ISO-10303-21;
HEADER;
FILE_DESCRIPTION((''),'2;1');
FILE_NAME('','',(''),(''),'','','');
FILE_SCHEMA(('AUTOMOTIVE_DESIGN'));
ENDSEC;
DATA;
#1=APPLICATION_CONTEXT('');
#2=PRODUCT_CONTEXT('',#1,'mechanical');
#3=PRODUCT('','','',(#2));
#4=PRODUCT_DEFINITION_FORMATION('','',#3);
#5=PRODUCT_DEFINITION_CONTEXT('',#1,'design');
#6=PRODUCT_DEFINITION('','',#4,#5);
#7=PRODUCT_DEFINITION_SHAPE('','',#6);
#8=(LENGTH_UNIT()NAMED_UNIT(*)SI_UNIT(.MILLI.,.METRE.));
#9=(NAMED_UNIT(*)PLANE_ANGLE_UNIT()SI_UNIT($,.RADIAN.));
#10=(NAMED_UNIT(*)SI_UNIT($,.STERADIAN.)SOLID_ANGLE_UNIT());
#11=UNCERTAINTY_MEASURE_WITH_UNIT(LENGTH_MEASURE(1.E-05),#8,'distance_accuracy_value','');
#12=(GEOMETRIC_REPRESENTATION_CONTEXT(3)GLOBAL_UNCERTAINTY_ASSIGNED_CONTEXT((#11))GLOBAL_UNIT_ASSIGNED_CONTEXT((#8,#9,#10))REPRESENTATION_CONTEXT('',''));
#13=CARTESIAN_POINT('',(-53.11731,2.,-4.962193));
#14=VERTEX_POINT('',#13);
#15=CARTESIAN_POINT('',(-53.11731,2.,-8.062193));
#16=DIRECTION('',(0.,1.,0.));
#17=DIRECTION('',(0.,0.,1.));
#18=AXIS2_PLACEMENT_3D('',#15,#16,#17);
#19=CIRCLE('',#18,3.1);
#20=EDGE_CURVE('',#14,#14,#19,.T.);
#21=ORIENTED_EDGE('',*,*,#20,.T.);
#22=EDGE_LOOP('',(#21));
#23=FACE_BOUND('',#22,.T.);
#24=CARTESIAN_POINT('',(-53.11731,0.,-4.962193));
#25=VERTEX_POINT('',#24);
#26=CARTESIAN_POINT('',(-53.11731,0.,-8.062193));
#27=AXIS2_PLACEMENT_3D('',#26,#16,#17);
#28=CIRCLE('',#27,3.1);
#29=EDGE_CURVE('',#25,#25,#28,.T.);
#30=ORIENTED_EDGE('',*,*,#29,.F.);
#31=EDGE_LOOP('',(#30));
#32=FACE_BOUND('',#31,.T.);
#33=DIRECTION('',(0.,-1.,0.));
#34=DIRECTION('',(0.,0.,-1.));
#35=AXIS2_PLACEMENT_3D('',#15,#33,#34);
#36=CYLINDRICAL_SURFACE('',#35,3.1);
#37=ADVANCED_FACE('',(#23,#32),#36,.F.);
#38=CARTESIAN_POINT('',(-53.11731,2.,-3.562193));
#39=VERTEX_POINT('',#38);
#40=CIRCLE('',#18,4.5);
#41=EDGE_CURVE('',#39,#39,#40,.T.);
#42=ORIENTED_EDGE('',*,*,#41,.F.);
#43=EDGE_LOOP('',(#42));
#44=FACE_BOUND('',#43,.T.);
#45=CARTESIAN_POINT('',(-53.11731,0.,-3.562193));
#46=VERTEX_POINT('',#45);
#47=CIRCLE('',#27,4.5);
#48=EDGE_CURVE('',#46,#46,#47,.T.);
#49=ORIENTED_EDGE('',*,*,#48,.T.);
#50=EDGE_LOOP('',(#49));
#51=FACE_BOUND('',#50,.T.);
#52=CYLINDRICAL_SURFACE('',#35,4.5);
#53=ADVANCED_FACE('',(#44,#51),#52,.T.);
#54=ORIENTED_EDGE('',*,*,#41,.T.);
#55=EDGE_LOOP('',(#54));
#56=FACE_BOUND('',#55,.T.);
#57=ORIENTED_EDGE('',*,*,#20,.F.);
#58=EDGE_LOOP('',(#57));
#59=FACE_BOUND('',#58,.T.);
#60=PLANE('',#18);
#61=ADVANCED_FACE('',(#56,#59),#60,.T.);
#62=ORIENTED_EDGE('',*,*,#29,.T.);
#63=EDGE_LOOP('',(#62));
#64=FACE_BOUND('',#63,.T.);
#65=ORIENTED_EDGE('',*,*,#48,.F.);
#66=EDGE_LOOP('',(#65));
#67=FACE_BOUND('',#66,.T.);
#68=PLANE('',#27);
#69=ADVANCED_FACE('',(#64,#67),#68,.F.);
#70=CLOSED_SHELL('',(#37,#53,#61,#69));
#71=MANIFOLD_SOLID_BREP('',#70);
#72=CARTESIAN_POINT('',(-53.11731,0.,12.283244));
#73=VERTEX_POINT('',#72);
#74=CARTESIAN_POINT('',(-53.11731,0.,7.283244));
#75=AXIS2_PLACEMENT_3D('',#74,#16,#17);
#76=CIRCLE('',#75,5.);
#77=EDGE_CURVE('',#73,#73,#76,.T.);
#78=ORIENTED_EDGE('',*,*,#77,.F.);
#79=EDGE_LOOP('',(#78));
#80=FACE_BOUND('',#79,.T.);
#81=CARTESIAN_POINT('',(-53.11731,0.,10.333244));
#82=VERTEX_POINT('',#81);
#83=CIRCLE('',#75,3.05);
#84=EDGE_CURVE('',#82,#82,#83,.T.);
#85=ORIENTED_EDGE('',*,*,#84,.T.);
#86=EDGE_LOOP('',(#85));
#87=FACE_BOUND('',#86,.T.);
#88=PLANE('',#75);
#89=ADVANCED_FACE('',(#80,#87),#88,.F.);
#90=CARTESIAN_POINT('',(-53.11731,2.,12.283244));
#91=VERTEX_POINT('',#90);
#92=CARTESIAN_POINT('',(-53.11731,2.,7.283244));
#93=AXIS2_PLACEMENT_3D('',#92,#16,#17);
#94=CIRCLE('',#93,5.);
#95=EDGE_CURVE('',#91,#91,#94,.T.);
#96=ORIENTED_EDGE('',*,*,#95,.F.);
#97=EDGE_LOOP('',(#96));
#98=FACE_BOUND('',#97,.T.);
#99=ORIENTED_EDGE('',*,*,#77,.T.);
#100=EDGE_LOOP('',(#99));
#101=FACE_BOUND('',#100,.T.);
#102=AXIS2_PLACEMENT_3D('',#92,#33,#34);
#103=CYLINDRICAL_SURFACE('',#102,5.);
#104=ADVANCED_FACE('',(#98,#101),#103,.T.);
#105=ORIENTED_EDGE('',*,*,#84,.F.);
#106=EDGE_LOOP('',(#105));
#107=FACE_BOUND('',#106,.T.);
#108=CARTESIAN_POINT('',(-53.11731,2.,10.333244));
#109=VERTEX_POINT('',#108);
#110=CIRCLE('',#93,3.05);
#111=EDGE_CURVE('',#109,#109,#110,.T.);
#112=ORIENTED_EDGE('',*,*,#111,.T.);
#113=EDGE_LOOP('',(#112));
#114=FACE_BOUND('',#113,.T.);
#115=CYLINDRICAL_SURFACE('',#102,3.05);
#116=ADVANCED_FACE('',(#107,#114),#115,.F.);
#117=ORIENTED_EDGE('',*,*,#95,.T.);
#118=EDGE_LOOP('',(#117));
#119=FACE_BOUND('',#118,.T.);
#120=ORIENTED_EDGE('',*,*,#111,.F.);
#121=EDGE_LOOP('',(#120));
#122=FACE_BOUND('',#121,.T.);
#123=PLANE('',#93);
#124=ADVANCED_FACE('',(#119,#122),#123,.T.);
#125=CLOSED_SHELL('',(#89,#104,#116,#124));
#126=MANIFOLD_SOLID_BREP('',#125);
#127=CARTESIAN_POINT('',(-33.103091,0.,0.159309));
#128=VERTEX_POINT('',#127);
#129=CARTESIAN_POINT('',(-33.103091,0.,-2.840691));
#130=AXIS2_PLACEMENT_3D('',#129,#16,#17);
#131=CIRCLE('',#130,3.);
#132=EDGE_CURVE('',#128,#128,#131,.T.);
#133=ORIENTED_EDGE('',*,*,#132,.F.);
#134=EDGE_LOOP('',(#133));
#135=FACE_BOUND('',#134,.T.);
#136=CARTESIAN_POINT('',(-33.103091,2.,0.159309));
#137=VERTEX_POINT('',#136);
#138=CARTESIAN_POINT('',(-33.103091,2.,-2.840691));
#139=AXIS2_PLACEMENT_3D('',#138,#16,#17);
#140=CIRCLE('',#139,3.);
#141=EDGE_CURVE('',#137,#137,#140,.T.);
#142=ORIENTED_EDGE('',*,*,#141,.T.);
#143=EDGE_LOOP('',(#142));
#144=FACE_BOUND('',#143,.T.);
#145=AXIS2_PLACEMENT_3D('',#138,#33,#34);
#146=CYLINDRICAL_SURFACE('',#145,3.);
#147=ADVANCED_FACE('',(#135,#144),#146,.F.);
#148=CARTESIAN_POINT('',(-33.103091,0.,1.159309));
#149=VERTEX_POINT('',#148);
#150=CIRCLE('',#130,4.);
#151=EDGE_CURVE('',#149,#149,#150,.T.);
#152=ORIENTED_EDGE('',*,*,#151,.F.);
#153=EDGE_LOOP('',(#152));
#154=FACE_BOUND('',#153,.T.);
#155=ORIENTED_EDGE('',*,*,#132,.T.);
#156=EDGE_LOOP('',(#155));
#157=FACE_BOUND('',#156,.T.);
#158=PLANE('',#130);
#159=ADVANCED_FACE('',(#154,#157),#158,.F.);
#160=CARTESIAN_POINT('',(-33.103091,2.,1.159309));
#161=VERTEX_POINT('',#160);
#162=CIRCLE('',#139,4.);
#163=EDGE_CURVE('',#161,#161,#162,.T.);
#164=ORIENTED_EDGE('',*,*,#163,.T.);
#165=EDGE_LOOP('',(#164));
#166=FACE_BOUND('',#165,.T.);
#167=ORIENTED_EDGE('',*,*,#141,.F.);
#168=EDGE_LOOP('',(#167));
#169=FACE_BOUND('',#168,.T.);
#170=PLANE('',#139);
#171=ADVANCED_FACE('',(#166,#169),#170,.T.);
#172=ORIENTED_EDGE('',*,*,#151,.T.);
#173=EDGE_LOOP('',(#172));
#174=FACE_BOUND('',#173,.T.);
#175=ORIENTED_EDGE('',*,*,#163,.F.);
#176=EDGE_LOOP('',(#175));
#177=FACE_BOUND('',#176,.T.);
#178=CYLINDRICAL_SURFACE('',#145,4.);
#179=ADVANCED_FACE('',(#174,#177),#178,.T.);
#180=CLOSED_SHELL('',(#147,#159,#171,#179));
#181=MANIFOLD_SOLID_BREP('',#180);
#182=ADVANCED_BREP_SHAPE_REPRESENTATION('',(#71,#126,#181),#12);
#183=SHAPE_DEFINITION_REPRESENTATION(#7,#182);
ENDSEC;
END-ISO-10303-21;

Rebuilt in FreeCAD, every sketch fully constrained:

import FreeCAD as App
import Part
import Sketcher
Q = App.Units.Quantity

doc = App.newDocument("Part")
body = doc.addObject("PartDesign::Body", "Body")

# Sketch on XZ plane
sketch1 = body.newObject("Sketcher::SketchObject", "Sketch")
sketch1.AttachmentSupport = (doc.getObject("XZ_Plane"), [""])
sketch1.MapMode = "FlatFace"
sketch1.addGeometry([
    Part.Circle(App.Vector(-33.1, -2.8, 0), App.Vector(0, 0, 1), 4),
    Part.Circle(App.Vector(-33.1, -2.8, 0), App.Vector(0, 0, 1), 3),
], False)
sketch1.addConstraint([
    Sketcher.Constraint("Coincident", 1, 3, 0, 3),
    Sketcher.Constraint("Diameter", 0, Q("8 mm")),
    Sketcher.Constraint("Diameter", 1, Q("6 mm")),
    Sketcher.Constraint("DistanceX", 0, 3, -1, 1, Q("33.103091 mm")),
    Sketcher.Constraint("DistanceY", 0, 3, -1, 1, Q("2.840691 mm")),
])
pad1 = body.newObject("PartDesign::Pad", "Pad")
pad1.Profile = sketch1
pad1.Length = 2
pad1.Reversed = True
body2 = doc.addObject("PartDesign::Body", "Body001")

# Sketch on XZ plane
sketch2 = body2.newObject("Sketcher::SketchObject", "Sketch001")
sketch2.AttachmentSupport = (doc.getObject("XZ_Plane001"), [""])
sketch2.MapMode = "FlatFace"
sketch2.addGeometry([
    Part.Circle(App.Vector(-53.1, -8.1, 0), App.Vector(0, 0, 1), 4.5),
    Part.Circle(App.Vector(-53.1, -8.1, 0), App.Vector(0, 0, 1), 3.1),
], False)
sketch2.addConstraint([
    Sketcher.Constraint("Coincident", 1, 3, 0, 3),
    Sketcher.Constraint("Diameter", 0, Q("9 mm")),
    Sketcher.Constraint("Diameter", 1, Q("6.2 mm")),
    Sketcher.Constraint("DistanceX", 0, 3, -1, 1, Q("53.11731 mm")),
    Sketcher.Constraint("DistanceY", 0, 3, -1, 1, Q("8.062193 mm")),
])
pad2 = body2.newObject("PartDesign::Pad", "Pad001")
pad2.Profile = sketch2
pad2.Length = 2
pad2.Reversed = True
body3 = doc.addObject("PartDesign::Body", "Body002")

# Sketch on XZ plane
sketch3 = body3.newObject("Sketcher::SketchObject", "Sketch002")
sketch3.AttachmentSupport = (doc.getObject("XZ_Plane002"), [""])
sketch3.MapMode = "FlatFace"
sketch3.addGeometry([
    Part.Circle(App.Vector(-53.1, 7.3, 0), App.Vector(0, 0, 1), 5),
    Part.Circle(App.Vector(-53.1, 7.3, 0), App.Vector(0, 0, 1), 3),
], False)
sketch3.addConstraint([
    Sketcher.Constraint("Coincident", 1, 3, 0, 3),
    Sketcher.Constraint("Diameter", 0, Q("10 mm")),
    Sketcher.Constraint("Diameter", 1, Q("6.1 mm")),
    Sketcher.Constraint("DistanceX", 0, 3, -1, 1, Q("53.11731 mm")),
    Sketcher.Constraint("DistanceY", -1, 1, 0, 3, Q("7.283244 mm")),
])
pad3 = body3.newObject("PartDesign::Pad", "Pad002")
pad3.Profile = sketch3
pad3.Length = 2
pad3.Reversed = True

doc.recompute()
